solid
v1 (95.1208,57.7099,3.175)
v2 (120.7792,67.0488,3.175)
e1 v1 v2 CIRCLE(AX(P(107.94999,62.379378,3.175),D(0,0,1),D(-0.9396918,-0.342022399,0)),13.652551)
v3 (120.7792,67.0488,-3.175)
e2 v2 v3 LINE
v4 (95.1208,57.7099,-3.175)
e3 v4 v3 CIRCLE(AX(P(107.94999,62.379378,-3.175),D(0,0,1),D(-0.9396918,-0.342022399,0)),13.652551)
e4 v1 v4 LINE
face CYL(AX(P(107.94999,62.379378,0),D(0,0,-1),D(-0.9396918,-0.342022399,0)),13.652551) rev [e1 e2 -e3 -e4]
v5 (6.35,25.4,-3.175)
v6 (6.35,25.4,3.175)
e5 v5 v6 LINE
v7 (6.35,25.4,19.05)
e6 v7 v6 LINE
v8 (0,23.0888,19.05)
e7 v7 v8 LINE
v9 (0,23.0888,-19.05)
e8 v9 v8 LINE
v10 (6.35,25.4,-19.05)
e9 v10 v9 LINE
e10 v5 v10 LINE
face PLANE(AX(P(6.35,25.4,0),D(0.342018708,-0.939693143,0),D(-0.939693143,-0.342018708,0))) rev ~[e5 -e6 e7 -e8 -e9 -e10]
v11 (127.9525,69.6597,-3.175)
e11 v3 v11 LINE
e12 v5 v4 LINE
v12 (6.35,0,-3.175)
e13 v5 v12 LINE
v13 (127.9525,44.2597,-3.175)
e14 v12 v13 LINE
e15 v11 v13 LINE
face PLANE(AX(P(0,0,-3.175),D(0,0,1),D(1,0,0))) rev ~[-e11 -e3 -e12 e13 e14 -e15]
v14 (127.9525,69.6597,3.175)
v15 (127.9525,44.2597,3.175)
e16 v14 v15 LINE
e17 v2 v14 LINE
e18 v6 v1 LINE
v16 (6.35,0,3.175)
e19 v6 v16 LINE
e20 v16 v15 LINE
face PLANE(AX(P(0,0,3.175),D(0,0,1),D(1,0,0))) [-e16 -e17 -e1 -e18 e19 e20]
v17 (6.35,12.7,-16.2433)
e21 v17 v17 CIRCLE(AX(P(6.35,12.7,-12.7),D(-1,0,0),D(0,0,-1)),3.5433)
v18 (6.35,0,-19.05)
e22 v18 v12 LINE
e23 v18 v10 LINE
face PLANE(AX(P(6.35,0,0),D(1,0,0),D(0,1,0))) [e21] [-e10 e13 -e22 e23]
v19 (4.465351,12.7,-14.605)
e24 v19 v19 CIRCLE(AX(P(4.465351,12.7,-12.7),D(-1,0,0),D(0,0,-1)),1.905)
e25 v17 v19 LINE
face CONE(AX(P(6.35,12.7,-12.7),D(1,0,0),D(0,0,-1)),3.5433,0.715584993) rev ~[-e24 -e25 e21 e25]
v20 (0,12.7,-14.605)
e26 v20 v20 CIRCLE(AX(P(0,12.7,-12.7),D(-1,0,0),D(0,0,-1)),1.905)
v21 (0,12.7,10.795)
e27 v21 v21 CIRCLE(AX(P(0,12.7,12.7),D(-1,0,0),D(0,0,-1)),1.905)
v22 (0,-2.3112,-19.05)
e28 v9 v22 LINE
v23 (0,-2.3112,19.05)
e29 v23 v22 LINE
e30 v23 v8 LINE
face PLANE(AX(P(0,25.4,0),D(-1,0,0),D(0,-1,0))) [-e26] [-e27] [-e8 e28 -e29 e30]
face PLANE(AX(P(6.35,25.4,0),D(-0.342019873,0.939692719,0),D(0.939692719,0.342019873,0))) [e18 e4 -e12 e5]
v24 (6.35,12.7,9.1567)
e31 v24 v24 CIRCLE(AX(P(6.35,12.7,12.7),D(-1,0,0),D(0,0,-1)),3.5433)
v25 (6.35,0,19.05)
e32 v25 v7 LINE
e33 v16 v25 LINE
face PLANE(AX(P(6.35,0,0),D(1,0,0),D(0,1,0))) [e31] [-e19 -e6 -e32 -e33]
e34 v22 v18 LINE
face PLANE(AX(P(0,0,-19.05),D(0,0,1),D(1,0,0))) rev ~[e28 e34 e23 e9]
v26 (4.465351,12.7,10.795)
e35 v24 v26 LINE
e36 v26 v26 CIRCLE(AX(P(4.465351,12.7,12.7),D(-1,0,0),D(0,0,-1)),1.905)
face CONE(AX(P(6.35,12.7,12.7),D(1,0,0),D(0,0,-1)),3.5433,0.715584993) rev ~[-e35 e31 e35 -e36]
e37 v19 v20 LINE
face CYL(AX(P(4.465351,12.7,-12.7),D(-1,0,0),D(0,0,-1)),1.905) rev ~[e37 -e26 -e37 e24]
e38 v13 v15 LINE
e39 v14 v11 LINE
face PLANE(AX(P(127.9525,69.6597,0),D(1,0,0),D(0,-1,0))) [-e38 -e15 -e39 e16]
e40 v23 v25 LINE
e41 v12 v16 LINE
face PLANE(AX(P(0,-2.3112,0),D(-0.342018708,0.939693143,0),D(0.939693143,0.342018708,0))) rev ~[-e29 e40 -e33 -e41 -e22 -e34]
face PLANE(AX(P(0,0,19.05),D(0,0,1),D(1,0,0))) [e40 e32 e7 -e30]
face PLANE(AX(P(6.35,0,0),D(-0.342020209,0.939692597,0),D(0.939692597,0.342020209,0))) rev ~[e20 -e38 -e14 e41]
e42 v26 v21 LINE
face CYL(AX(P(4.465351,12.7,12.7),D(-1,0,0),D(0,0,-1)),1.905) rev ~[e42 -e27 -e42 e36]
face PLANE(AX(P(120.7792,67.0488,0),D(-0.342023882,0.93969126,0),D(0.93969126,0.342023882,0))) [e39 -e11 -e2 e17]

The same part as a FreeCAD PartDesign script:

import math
import FreeCAD as App
import Part
import Sketcher

V = App.Vector
Q = App.Units.Quantity


def add_polygon(sketch, points):
    """Adds a closed chain of lines whose ends are joined by coincident constraints."""
    first, n = sketch.GeometryCount, len(points)
    for a, b in zip(points, points[1:] + points[:1]):
        sketch.addGeometry(Part.LineSegment(App.Vector(*a, 0), App.Vector(*b, 0)), False)
    for i in range(n):
        sketch.addConstraint(Sketcher.Constraint("Coincident", first + i, 2, first + (i + 1) % n, 1))

doc = App.newDocument("Part")
body = doc.addObject("PartDesign::Body", "Body")

sketch1 = doc.addObject("Sketcher::SketchObject", "Sketch")
body.addObject(sketch1)
sketch1.AttachmentSupport = (doc.XY_Plane, [""])
sketch1.MapMode = "FlatFace"
add_polygon(sketch1, [(0, 25), (0, 0), (6, 0), (6, 25)])
sketch1.addConstraint([
    Sketcher.Constraint("Vertical", 0),
    Sketcher.Constraint("Horizontal", 1),
    Sketcher.Constraint("Vertical", 2),
    Sketcher.Constraint("Horizontal", 3),
    Sketcher.Constraint("Coincident", 0, 2, -1, 1),
    Sketcher.Constraint("DistanceY", 0, 2, 0, 1, Q("1 in")),
    Sketcher.Constraint("DistanceX", 1, 1, 1, 2, Q("0.25 in")),
])
pad1 = doc.addObject("PartDesign::Pad", "Pad")
body.addObject(pad1)
pad1.Profile = sketch1
pad1.Length = Q("1.5 in")
pad1.Midplane = True

sketch2 = doc.addObject("Sketcher::SketchObject", "Sketch001")
body.addObject(sketch2)
sketch2.AttachmentSupport = (doc.XY_Plane, [""])
sketch2.MapMode = "FlatFace"
sketch2.addGeometry([
    Part.LineSegment(V(95, 58, 0), V(6, 25, 0)),
    Part.LineSegment(V(6, 25, 0), V(6, 0, 0)),
    Part.LineSegment(V(6, 0, 0), V(128, 44, 0)),
    Part.LineSegment(V(128, 44, 0), V(128, 70, 0)),
    Part.LineSegment(V(128, 70, 0), V(121, 67, 0)),
    Part.ArcOfCircle(Part.Circle(V(108, 62, 0), V(0, 0, 1), 14), math.radians(-160), math.radians(20)),
], False)
sketch2.addConstraint([
    Sketcher.Constraint("Coincident", 0, 2, 1, 1),
    Sketcher.Constraint("Coincident", 1, 2, 2, 1),
    Sketcher.Constraint("Coincident", 2, 2, 3, 1),
    Sketcher.Constraint("Coincident", 3, 2, 4, 1),
    Sketcher.Constraint("Coincident", 4, 2, 5, 2),
    Sketcher.Constraint("Coincident", 5, 1, 0, 1),
    Sketcher.Constraint("Vertical", 1),
    Sketcher.Constraint("Vertical", 3),
    Sketcher.Constraint("PointOnObject", 1, 2, -1),
    Sketcher.Constraint("Parallel", 0, 2),
    Sketcher.Constraint("Parallel", 2, 4),
    Sketcher.Constraint("Equal", 1, 3),
    Sketcher.Constraint("Angle", 2, Q("20 deg")),
    Sketcher.Constraint("Radius", 5, Q("0.5375 in")),
    Sketcher.Constraint("DistanceY", 1, 2, 1, 1, Q("1 in")),
    Sketcher.Constraint("DistanceX", -1, 1, 5, 3, Q("4.25 in")),
    Sketcher.Constraint("DistanceX", -1, 1, 0, 2, Q("0.25 in")),
    Sketcher.Constraint("Distance", 0, Q("3.7192 in")),
    Sketcher.Constraint("DistanceX", -1, 1, 2, 2, Q("5.0375 in")),
])
pad2 = doc.addObject("PartDesign::Pad", "Pad001")
body.addObject(pad2)
pad2.Profile = sketch2
pad2.Length = Q("0.25 in")
pad2.Midplane = True

sketch3 = doc.addObject("Sketcher::SketchObject", "Sketch002")
body.addObject(sketch3)
sketch3.AttachmentSupport = (doc.XY_Plane, [""])
sketch3.MapMode = "FlatFace"
add_polygon(sketch3, [(0, -2.3), (6.3, 0), (0, 0)])
sketch3.addConstraint([
    Sketcher.Constraint("Horizontal", 1),
    Sketcher.Constraint("Vertical", 2),
    Sketcher.Constraint("Coincident", 1, 2, -1, 1),
    Sketcher.Constraint("Angle", 0, Q("20 deg")),
    Sketcher.Constraint("DistanceX", 1, 2, 1, 1, Q("0.25 in")),
])
pad3 = doc.addObject("PartDesign::Pad", "Pad002")
body.addObject(pad3)
pad3.Profile = sketch3
pad3.Length = Q("1.5 in")
pad3.Midplane = True

sketch4 = doc.addObject("Sketcher::SketchObject", "Sketch003")
body.addObject(sketch4)
sketch4.AttachmentSupport = (doc.YZ_Plane, [""])
sketch4.MapMode = "FlatFace"
sketch4.AttachmentOffset = App.Placement(V(0, 0, 0.25 * 25.4), App.Rotation())
sketch4.addGeometry([
    Part.Circle(V(12.7, 12.7, 0), V(0, 0, 1), 1.9),
    Part.Circle(V(12.7, -12.7, 0), V(0, 0, 1), 1.9),
], False)
sketch4.addConstraint([
    Sketcher.Constraint("Equal", 0, 1),
    Sketcher.Constraint("Symmetric", 0, 3, 1, 3, -1),
    Sketcher.Constraint("Diameter", 0, Q("0.15 in")),
    Sketcher.Constraint("DistanceY", 1, 3, 0, 3, Q("1 in")),
    Sketcher.Constraint("DistanceX", -1, 1, 0, 3, Q("0.5 in")),
])
doc.recompute()
hole = doc.addObject("PartDesign::Hole", "Hole")
body.addObject(hole)
hole.Profile = sketch4
hole.ThreadType = "None"
hole.Diameter = Q("0.15 in")
hole.DepthType = "ThroughAll"
hole.HoleCutType = "Countersink"
hole.HoleCutDiameter = Q("0.279 in")
hole.HoleCutCountersinkAngle = 82

sketch5 = doc.addObject("Sketcher::SketchObject", "Sketch004")
body.addObject(sketch5)
sketch5.AttachmentSupport = (doc.XY_Plane, [""])
sketch5.MapMode = "FlatFace"
add_polygon(sketch5, [(6.3, 25.4), (0, 25.4), (0, 23.1)])
sketch5.addConstraint([
    Sketcher.Constraint("Horizontal", 0),
    Sketcher.Constraint("Vertical", 1),
    Sketcher.Constraint("PointOnObject", 0, 2, -2),
    Sketcher.Constraint("DistanceY", -1, 1, 0, 2, Q("1 in")),
    Sketcher.Constraint("Angle", 2, Q("20 deg")),
    Sketcher.Constraint("DistanceX", 0, 2, 0, 1, Q("0.25 in")),
])
pocket1 = doc.addObject("PartDesign::Pocket", "Pocket")
body.addObject(pocket1)
pocket1.Profile = sketch5
pocket1.Length = Q("1.5 in")
pocket1.Midplane = True

doc.recompute()
